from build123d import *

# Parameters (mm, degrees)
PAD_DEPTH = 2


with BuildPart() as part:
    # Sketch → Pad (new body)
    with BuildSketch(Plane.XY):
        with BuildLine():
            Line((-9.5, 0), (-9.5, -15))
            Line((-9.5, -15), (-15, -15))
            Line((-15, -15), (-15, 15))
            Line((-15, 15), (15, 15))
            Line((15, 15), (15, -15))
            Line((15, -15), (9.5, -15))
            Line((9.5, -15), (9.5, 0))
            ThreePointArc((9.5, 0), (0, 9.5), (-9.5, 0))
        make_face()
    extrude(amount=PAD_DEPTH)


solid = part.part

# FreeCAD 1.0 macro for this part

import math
import FreeCAD as App
import Part
import Sketcher
Q = App.Units.Quantity

doc = App.newDocument("Part")
body = doc.addObject("PartDesign::Body", "Body")

# Sketch on XY plane
sketch1 = body.newObject("Sketcher::SketchObject", "Sketch")
sketch1.AttachmentSupport = (doc.getObject("XY_Plane"), [""])
sketch1.MapMode = "FlatFace"
sketch1.addGeometry([
    Part.LineSegment(App.Vector(-9.5, -15, 0), App.Vector(-9.5, 0, 0)),  # 0
    Part.ArcOfCircle(Part.Circle(App.Vector(0, 0, 0), App.Vector(0, 0, 1), 9.5), math.radians(0), math.radians(180)),  # 1
    Part.LineSegment(App.Vector(9.5, 0, 0), App.Vector(9.5, -15, 0)),  # 2
    Part.LineSegment(App.Vector(9.5, -15, 0), App.Vector(15, -15, 0)),  # 3
    Part.LineSegment(App.Vector(15, -15, 0), App.Vector(15, 15, 0)),  # 4
    Part.LineSegment(App.Vector(15, 15, 0), App.Vector(-15, 15, 0)),  # 5
    Part.LineSegment(App.Vector(-15, 15, 0), App.Vector(-15, -15, 0)),  # 6
    Part.LineSegment(App.Vector(-15, -15, 0), App.Vector(-9.5, -15, 0)),  # 7
], False)
sketch1.addConstraint([
    Sketcher.Constraint("Tangent", 0, 2, 1, 2),
    Sketcher.Constraint("Tangent", 1, 1, 2, 1),
    Sketcher.Constraint("Coincident", 2, 2, 3, 1),
    Sketcher.Constraint("Coincident", 3, 2, 4, 1),
    Sketcher.Constraint("Coincident", 4, 2, 5, 1),
    Sketcher.Constraint("Coincident", 5, 2, 6, 1),
    Sketcher.Constraint("Coincident", 6, 2, 7, 1),
    Sketcher.Constraint("Coincident", 7, 2, 0, 1),
    Sketcher.Constraint("Vertical", 0),
    Sketcher.Constraint("Vertical", 2),
    Sketcher.Constraint("Horizontal", 3),
    Sketcher.Constraint("Vertical", 4),
    Sketcher.Constraint("Horizontal", 5),
    Sketcher.Constraint("Vertical", 6),
    Sketcher.Constraint("Horizontal", 7),
    Sketcher.Constraint("Coincident", 1, 3, -1, 1),
    Sketcher.Constraint("Symmetric", 3, 2, 5, 2, -1, 1),
    Sketcher.Constraint("Horizontal", 3, 2, 6, 2),
    Sketcher.Constraint("Equal", 5, 4),
    Sketcher.Constraint("Radius", 1, Q("9.5 mm")),
    Sketcher.Constraint("DistanceX", 5, 2, 5, 1, Q("30 mm")),
])
pad1 = body.newObject("PartDesign::Pad", "Pad")
pad1.Profile = sketch1
pad1.Length = 2

doc.recompute()
